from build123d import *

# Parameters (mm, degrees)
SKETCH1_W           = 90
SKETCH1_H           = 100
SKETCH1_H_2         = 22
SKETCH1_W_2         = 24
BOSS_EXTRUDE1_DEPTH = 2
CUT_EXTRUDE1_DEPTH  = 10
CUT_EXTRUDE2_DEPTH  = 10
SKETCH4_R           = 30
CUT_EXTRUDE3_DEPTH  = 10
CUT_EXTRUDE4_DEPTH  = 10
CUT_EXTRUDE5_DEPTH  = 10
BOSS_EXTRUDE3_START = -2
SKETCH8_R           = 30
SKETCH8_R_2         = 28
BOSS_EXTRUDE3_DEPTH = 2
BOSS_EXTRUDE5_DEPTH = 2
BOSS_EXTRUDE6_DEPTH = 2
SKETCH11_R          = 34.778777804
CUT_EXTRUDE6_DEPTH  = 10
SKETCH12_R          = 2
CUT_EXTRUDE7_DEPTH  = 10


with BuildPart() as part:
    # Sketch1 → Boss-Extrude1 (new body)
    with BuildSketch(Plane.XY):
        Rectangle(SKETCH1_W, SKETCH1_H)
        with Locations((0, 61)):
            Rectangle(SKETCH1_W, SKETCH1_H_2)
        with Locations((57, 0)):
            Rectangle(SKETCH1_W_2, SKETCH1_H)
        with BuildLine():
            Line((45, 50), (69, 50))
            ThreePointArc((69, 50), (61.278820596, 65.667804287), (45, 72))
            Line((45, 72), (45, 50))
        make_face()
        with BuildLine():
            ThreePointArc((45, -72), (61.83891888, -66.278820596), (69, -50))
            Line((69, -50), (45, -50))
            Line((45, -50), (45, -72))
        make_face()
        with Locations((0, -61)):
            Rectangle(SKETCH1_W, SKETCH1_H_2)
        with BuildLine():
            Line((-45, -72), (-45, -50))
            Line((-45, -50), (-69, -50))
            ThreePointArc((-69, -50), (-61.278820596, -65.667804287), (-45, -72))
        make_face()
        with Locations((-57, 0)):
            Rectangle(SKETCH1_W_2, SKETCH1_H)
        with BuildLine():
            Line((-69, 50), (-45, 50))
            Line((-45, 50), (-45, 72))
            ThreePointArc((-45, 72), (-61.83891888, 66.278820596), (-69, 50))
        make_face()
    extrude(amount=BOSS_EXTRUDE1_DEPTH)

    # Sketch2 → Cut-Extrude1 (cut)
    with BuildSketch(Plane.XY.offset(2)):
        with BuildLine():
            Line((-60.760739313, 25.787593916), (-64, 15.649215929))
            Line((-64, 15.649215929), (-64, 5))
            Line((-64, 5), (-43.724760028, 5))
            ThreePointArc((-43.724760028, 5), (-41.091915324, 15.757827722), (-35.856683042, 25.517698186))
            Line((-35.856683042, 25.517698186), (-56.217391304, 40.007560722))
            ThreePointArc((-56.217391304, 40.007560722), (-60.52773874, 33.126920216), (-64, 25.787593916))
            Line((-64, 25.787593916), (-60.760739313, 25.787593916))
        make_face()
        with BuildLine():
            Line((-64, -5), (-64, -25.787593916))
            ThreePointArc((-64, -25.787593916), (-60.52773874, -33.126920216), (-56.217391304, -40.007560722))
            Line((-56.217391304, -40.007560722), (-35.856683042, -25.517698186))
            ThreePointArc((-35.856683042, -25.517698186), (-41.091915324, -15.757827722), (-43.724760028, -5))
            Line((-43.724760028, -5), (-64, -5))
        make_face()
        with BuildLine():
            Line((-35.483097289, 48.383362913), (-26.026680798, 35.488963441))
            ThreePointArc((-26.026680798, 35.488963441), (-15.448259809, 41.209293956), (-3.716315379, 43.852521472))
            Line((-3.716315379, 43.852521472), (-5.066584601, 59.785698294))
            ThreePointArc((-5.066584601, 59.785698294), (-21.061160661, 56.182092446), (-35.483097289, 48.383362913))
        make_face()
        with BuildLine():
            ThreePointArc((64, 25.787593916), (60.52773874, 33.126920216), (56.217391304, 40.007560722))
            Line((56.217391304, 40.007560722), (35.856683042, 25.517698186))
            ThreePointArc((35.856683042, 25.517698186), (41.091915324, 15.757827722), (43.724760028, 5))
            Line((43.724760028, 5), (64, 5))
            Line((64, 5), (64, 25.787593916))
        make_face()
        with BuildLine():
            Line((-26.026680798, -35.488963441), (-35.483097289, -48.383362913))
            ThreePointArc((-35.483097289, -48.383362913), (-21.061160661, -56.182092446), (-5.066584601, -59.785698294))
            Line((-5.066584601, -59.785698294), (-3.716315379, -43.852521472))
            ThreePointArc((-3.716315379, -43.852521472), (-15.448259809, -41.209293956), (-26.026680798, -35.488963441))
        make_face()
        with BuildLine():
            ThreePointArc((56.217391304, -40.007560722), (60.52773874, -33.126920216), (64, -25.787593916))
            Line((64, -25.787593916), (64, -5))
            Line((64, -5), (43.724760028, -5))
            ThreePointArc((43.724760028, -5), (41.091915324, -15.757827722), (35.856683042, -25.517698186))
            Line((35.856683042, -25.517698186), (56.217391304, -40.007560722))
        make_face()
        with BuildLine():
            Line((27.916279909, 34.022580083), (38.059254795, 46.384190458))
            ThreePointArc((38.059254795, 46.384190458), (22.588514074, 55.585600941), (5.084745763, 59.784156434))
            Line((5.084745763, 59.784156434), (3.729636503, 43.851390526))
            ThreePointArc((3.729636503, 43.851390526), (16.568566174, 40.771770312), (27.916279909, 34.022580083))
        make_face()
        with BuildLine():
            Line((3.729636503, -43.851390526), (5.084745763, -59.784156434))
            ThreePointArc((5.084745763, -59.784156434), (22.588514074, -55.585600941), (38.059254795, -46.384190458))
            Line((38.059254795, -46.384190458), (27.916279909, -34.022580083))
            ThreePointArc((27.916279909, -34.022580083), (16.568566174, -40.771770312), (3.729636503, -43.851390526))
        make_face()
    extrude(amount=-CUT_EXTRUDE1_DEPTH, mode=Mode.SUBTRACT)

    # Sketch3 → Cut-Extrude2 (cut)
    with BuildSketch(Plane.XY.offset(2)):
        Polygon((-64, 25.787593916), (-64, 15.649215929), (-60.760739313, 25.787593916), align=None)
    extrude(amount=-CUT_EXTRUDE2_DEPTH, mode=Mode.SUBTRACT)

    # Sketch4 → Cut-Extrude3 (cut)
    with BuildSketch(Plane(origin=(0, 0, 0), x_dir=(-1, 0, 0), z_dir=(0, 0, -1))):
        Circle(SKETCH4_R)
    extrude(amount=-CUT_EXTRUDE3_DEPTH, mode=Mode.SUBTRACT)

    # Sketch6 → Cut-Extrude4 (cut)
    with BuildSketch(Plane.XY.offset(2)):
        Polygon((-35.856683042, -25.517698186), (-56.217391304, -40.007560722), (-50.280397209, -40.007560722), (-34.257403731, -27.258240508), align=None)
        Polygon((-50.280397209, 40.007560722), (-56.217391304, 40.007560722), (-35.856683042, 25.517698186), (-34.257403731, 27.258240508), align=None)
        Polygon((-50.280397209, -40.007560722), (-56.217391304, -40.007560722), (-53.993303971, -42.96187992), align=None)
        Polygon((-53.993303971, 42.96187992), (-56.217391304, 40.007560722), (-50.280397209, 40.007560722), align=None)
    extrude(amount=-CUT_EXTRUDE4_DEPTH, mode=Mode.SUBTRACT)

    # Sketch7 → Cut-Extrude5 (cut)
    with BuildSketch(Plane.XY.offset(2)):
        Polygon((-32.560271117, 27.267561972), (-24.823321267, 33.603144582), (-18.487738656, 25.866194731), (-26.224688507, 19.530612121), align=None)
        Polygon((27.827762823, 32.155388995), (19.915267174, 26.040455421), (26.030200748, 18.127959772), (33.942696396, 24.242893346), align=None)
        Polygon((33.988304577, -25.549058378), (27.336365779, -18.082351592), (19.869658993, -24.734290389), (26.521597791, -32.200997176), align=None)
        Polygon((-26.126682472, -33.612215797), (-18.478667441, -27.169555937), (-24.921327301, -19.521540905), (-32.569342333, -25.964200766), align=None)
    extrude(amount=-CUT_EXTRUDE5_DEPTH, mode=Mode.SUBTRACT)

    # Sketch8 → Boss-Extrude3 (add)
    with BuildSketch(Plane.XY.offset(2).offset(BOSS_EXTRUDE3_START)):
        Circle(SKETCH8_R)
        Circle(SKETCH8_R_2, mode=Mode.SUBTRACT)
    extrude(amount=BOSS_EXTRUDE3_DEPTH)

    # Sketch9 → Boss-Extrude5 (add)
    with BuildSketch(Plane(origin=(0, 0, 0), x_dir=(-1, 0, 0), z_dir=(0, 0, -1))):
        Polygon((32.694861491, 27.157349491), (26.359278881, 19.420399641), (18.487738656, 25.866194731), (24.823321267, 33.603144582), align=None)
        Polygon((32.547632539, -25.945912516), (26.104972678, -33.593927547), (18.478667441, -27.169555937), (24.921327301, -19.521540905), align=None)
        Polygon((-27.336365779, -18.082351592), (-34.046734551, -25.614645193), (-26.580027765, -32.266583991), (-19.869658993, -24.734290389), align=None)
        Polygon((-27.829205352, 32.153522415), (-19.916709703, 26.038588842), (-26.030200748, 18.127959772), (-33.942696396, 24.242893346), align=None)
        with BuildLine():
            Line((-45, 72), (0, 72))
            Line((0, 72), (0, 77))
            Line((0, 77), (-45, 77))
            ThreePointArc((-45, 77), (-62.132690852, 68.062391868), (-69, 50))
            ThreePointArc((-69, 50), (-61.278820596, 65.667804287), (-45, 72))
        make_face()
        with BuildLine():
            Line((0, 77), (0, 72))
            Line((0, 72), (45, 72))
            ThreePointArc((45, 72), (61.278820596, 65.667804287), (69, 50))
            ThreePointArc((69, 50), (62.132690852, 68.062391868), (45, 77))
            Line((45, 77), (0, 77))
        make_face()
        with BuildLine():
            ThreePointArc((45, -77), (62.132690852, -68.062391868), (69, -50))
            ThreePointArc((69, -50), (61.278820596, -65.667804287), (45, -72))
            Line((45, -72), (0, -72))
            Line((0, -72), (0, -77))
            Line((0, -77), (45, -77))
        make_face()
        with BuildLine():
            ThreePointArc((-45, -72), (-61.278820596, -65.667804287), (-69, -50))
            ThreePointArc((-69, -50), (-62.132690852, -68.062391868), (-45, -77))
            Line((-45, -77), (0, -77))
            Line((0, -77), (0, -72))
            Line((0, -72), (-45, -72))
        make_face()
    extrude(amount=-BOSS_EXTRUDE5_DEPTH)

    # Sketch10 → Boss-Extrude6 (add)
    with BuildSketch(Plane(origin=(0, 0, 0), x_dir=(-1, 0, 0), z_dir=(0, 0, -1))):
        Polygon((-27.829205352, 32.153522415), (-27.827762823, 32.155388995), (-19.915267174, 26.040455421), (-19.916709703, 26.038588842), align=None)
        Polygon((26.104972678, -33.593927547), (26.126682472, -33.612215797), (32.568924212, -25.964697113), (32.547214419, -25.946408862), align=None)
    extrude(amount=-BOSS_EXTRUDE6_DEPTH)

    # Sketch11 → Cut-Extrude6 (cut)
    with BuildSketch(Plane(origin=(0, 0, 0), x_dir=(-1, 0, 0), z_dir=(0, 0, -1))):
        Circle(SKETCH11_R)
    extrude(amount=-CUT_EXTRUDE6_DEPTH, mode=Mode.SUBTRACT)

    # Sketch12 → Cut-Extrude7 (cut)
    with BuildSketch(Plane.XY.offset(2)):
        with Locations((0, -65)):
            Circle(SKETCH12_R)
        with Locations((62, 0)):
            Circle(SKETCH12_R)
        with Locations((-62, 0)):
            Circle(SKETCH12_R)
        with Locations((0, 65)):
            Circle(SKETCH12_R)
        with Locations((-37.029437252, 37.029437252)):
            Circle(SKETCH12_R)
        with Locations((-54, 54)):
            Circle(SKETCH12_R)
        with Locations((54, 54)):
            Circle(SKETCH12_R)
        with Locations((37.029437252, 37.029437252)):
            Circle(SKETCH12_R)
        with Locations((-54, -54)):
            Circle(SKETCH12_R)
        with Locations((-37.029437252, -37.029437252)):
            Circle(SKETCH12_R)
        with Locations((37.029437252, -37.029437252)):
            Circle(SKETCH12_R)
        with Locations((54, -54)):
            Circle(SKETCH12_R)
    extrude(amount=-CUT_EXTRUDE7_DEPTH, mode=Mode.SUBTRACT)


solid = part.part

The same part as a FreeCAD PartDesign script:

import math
import FreeCAD as App
import Part
import Sketcher

V = App.Vector


def add_polygon(sketch, points):
    """Adds a closed chain of lines whose ends are joined by coincident constraints."""
    first, n = sketch.GeometryCount, len(points)
    for a, b in zip(points, points[1:] + points[:1]):
        sketch.addGeometry(Part.LineSegment(App.Vector(*a, 0), App.Vector(*b, 0)), False)
    for i in range(n):
        sketch.addConstraint(Sketcher.Constraint("Coincident", first + i, 2, first + (i + 1) % n, 1))

doc = App.newDocument("Part")
params = doc.addObject("Spreadsheet::Sheet", "Params")
for row, (alias, value) in enumerate([
    ("sketch1_width", "90 mm"),
    ("sketch1_height", "100 mm"),
    ("pad1_length", "2 mm"),
    ("sketch2_radius", "69 mm"),
    ("sketch2_radius2", "60 mm"),
    ("pocket1_length", "10 mm"),
    ("pocket2_length", "10 mm"),
    ("sketch4_diameter", "60 mm"),
    ("pocket3_length", "10 mm"),
    ("pocket4_length", "10 mm"),
    ("sketch6_length", "10 mm"),
    ("pocket5_length", "10 mm"),
    ("sketch7_diameter", "60 mm"),
    ("sketch7_diameter2", "56 mm"),
    ("pad2_length", "2 mm"),
    ("sketch8_width", "90 mm"),
    ("sketch8_length", "10 mm"),
    ("pad3_length", "2 mm"),
    ("sketch9_length", "10 mm"),
    ("pad4_length", "2 mm"),
    ("pocket6_length", "10 mm"),
    ("sketch11_diameter", "4 mm"),
    ("pocket7_length", "10 mm"),
], start=1):
    params.set(f"A{row}", alias)
    params.set(f"B{row}", "=" + value)
    params.setAlias(f"B{row}", alias)

body = doc.addObject("PartDesign::Body", "Body")

# Sketch on XY plane
sketch1 = body.newObject("Sketcher::SketchObject", "Sketch")
sketch1.AttachmentSupport = (doc.getObject("XY_Plane"), [""])
sketch1.MapMode = "FlatFace"
sketch1.addGeometry([
    Part.ArcOfCircle(Part.Circle(V(47, -50, 0), V(0, 0, 1), 22), math.radians(-95), math.radians(0)),  # 0
    Part.LineSegment(V(69, -50, 0), V(69, 50, 0)),  # 1
    Part.ArcOfCircle(Part.Circle(V(45, 48, 0), V(0, 0, 1), 24), math.radians(5), math.radians(90)),  # 2
    Part.LineSegment(V(45, 72, 0), V(-45, 72, 0)),  # 3
    Part.ArcOfCircle(Part.Circle(V(-47, 50, 0), V(0, 0, 1), 22), math.radians(85), math.radians(180)),  # 4
    Part.LineSegment(V(-69, 50, 0), V(-69, -50, 0)),  # 5
    Part.ArcOfCircle(Part.Circle(V(-45, -48, 0), V(0, 0, 1), 24), math.radians(-175), math.radians(-90)),  # 6
    Part.LineSegment(V(-45, -72, 0), V(45, -72, 0)),  # 7
], False)
sketch1.addConstraint([
    Sketcher.Constraint("Tangent", 0, 2, 1, 1),
    Sketcher.Constraint("Coincident", 1, 2, 2, 1),
    Sketcher.Constraint("Tangent", 2, 2, 3, 1),
    Sketcher.Constraint("Coincident", 3, 2, 4, 1),
    Sketcher.Constraint("Tangent", 4, 2, 5, 1),
    Sketcher.Constraint("Coincident", 5, 2, 6, 1),
    Sketcher.Constraint("Tangent", 6, 2, 7, 1),
    Sketcher.Constraint("Coincident", 7, 2, 0, 1),
    Sketcher.Constraint("Vertical", 1),
    Sketcher.Constraint("Horizontal", 3),
    Sketcher.Constraint("Vertical", 5),
    Sketcher.Constraint("Horizontal", 7),
    Sketcher.Constraint("Equal", 0, 4),
    Sketcher.Constraint("Equal", 2, 6),
    Sketcher.Constraint("Symmetric", 0, 3, 4, 3, -1, 1),
    Sketcher.Constraint("Symmetric", 2, 3, 6, 3, -1, 1),
    Sketcher.Constraint("Horizontal", 4, 3, 1, 2),
    Sketcher.Constraint("Vertical", 6, 3, 3, 2),
    Sketcher.Constraint("DistanceX", 3, 2, 3, 1, 90.0),
    Sketcher.Constraint("DistanceY", 1, 1, 1, 2, 100.0),
    Sketcher.Constraint("DistanceX", -1, 1, 0, 2, 69.0),
    Sketcher.Constraint("DistanceY", -1, 1, 2, 2, 72.0),
])
sketch1.setExpression("Constraints[18]", "Params.sketch1_width")
sketch1.setExpression("Constraints[19]", "Params.sketch1_height")
pad1 = body.newObject("PartDesign::Pad", "Pad")
pad1.Profile = sketch1
pad1.setExpression("Length", "Params.pad1_length")

# Sketch on XY plane
sketch2 = body.newObject("Sketcher::SketchObject", "Sketch001")
sketch2.AttachmentSupport = (doc.getObject("XY_Plane"), [""])
sketch2.MapMode = "FlatFace"
sketch2.AttachmentOffset = App.Placement(V(0, 0, 2), App.Rotation())
sketch2.addGeometry([
    Part.LineSegment(V(-60.8, 25.8, 0), V(-64, 15.6, 0)),  # 0
    Part.LineSegment(V(-64, 15.6, 0), V(-64, 5, 0)),  # 1
    Part.LineSegment(V(-64, 5, 0), V(-43.7, 5, 0)),  # 2
    Part.ArcOfCircle(Part.Circle(V(0, 0, 0), V(0, 0, 1), 44), math.radians(145), math.radians(173)),  # 3
    Part.LineSegment(V(-35.9, 25.5, 0), V(-56.2, 40, 0)),  # 4
    Part.ArcOfCircle(Part.Circle(V(0, 0, 0), V(0, 0, 1), 69), math.radians(144.56), math.radians(158.05)),  # 5
    Part.LineSegment(V(-64, 25.8, 0), V(-60.8, 25.8, 0)),  # 6
    Part.LineSegment(V(-64, -5, 0), V(-64, -25.8, 0)),  # 7
    Part.ArcOfCircle(Part.Circle(V(0, 0, 0), V(0, 0, 1), 69), math.radians(-158.05), math.radians(-144.56)),  # 8
    Part.LineSegment(V(-56.2, -40, 0), V(-35.9, -25.5, 0)),  # 9
    Part.ArcOfCircle(Part.Circle(V(0, 0, 0), V(0, 0, 1), 44), math.radians(-173), math.radians(-145)),  # 10
    Part.LineSegment(V(-43.7, -5, 0), V(-64, -5, 0)),  # 11
    Part.LineSegment(V(-35.5, 48.4, 0), V(-26, 35.5, 0)),  # 12
    Part.ArcOfCircle(Part.Circle(V(0, 0, 0), V(0, 0, 1), 44), math.radians(95), math.radians(126)),  # 13
    Part.LineSegment(V(-3.7, 43.9, 0), V(-5.1, 59.8, 0)),  # 14
    Part.ArcOfCircle(Part.Circle(V(0, 0, 0), V(0, 0, 1), 60), math.radians(95), math.radians(126)),  # 15
    Part.ArcOfCircle(Part.Circle(V(0, 0, 0), V(0, 0, 1), 69), math.radians(21.95), math.radians(35.44)),  # 16
    Part.LineSegment(V(56.2, 40, 0), V(35.9, 25.5, 0)),  # 17
    Part.ArcOfCircle(Part.Circle(V(0, 0, 0), V(0, 0, 1), 44), math.radians(7), math.radians(35)),  # 18
    Part.LineSegment(V(43.7, 5, 0), V(64, 5, 0)),  # 19
    Part.LineSegment(V(64, 5, 0), V(64, 25.8, 0)),  # 20
    Part.LineSegment(V(-26, -35.5, 0), V(-35.5, -48.4, 0)),  # 21
    Part.ArcOfCircle(Part.Circle(V(0, 0, 0), V(0, 0, 1), 60), math.radians(-126), math.radians(-95)),  # 22
    Part.LineSegment(V(-5.1, -59.8, 0), V(-3.7, -43.9, 0)),  # 23
    Part.ArcOfCircle(Part.Circle(V(0, 0, 0), V(0, 0, 1), 44), math.radians(-126), math.radians(-95)),  # 24
    Part.ArcOfCircle(Part.Circle(V(0, 0, 0), V(0, 0, 1), 69), math.radians(-35.44), math.radians(-21.95)),  # 25
    Part.LineSegment(V(64, -25.8, 0), V(64, -5, 0)),  # 26
    Part.LineSegment(V(64, -5, 0), V(43.7, -5, 0)),  # 27
    Part.ArcOfCircle(Part.Circle(V(0, 0, 0), V(0, 0, 1), 44), math.radians(-35), math.radians(-7)),  # 28
    Part.LineSegment(V(35.9, -25.5, 0), V(56.2, -40, 0)),  # 29
    Part.LineSegment(V(27.9, 34, 0), V(38.1, 46.4, 0)),  # 30
    Part.ArcOfCircle(Part.Circle(V(0, 0, 0), V(0, 0, 1), 60), math.radians(51), math.radians(85)),  # 31
    Part.LineSegment(V(5.1, 59.8, 0), V(3.7, 43.9, 0)),  # 32
    Part.ArcOfCircle(Part.Circle(V(0, 0, 0), V(0, 0, 1), 44), math.radians(51), math.radians(85)),  # 33
    Part.LineSegment(V(3.7, -43.9, 0), V(5.1, -59.8, 0)),  # 34
    Part.ArcOfCircle(Part.Circle(V(0, 0, 0), V(0, 0, 1), 60), math.radians(-85), math.radians(-51)),  # 35
    Part.LineSegment(V(38.1, -46.4, 0), V(27.9, -34, 0)),  # 36
    Part.ArcOfCircle(Part.Circle(V(0, 0, 0), V(0, 0, 1), 44), math.radians(-85), math.radians(-51)),  # 37
], False)
sketch2.addConstraint([
    Sketcher.Constraint("Coincident", 0, 2, 1, 1),
    Sketcher.Constraint("Coincident", 1, 2, 2, 1),
    Sketcher.Constraint("Coincident", 2, 2, 3, 2),
    Sketcher.Constraint("Coincident", 3, 1, 4, 1),
    Sketcher.Constraint("Coincident", 4, 2, 5, 1),
    Sketcher.Constraint("Coincident", 5, 2, 6, 1),
    Sketcher.Constraint("Coincident", 6, 2, 0, 1),
    Sketcher.Constraint("Coincident", 7, 2, 8, 1),
    Sketcher.Constraint("Coincident", 8, 2, 9, 1),
    Sketcher.Constraint("Coincident", 9, 2, 10, 2),
    Sketcher.Constraint("Coincident", 10, 1, 11, 1),
    Sketcher.Constraint("Coincident", 11, 2, 7, 1),
    Sketcher.Constraint("Coincident", 12, 2, 13, 2),
    Sketcher.Constraint("Coincident", 13, 1, 14, 1),
    Sketcher.Constraint("Coincident", 14, 2, 15, 1),
    Sketcher.Constraint("Coincident", 15, 2, 12, 1),
    Sketcher.Constraint("Coincident", 16, 2, 17, 1),
    Sketcher.Constraint("Coincident", 17, 2, 18, 2),
    Sketcher.Constraint("Coincident", 18, 1, 19, 1),
    Sketcher.Constraint("Coincident", 19, 2, 20, 1),
    Sketcher.Constraint("Coincident", 20, 2, 16, 1),
    Sketcher.Constraint("Coincident", 21, 2, 22, 1),
    Sketcher.Constraint("Coincident", 22, 2, 23, 1),
    Sketcher.Constraint("Coincident", 23, 2, 24, 2),
    Sketcher.Constraint("Coincident", 24, 1, 21, 1),
    Sketcher.Constraint("Coincident", 25, 2, 26, 1),
    Sketcher.Constraint("Coincident", 26, 2, 27, 1),
    Sketcher.Constraint("Coincident", 27, 2, 28, 2),
    Sketcher.Constraint("Coincident", 28, 1, 29, 1),
    Sketcher.Constraint("Coincident", 29, 2, 25, 1),
    Sketcher.Constraint("Coincident", 30, 2, 31, 1),
    Sketcher.Constraint("Coincident", 31, 2, 32, 1),
    Sketcher.Constraint("Coincident", 32, 2, 33, 2),
    Sketcher.Constraint("Coincident", 33, 1, 30, 1),
    Sketcher.Constraint("Coincident", 34, 2, 35, 1),
    Sketcher.Constraint("Coincident", 35, 2, 36, 1),
    Sketcher.Constraint("Coincident", 36, 2, 37, 2),
    Sketcher.Constraint("Coincident", 37, 1, 34, 1),
    Sketcher.Constraint("Vertical", 1),
    Sketcher.Constraint("Horizontal", 2),
    Sketcher.Constraint("Horizontal", 6),
    Sketcher.Constraint("Vertical", 7),
    Sketcher.Constraint("Horizontal", 11),
    Sketcher.Constraint("Horizontal", 19),
    Sketcher.Constraint("Vertical", 20),
    Sketcher.Constraint("Vertical", 26),
    Sketcher.Constraint("Horizontal", 27),
    Sketcher.Constraint("Coincident", 3, 3, -1, 1),
    Sketcher.Constraint("Coincident", 5, 3, -1, 1),
    Sketcher.Constraint("Coincident", 8, 3, -1, 1),
    Sketcher.Constraint("Coincident", 10, 3, -1, 1),
    Sketcher.Constraint("Coincident", 13, 3, -1, 1),
    Sketcher.Constraint("Coincident", 15, 3, -1, 1),
    Sketcher.Constraint("Coincident", 16, 3, -1, 1),
    Sketcher.Constraint("Coincident", 18, 3, -1, 1),
    Sketcher.Constraint("Coincident", 22, 3, -1, 1),
    Sketcher.Constraint("Coincident", 24, 3, -1, 1),
    Sketcher.Constraint("Coincident", 25, 3, -1, 1),
    Sketcher.Constraint("Coincident", 28, 3, -1, 1),
    Sketcher.Constraint("Coincident", 31, 3, -1, 1),
    Sketcher.Constraint("Coincident", 33, 3, -1, 1),
    Sketcher.Constraint("Coincident", 35, 3, -1, 1),
    Sketcher.Constraint("Coincident", 37, 3, -1, 1),
    Sketcher.Constraint("Equal", 5, 8),
    Sketcher.Constraint("Equal", 3, 10),
    Sketcher.Constraint("Equal", 10, 13),
    Sketcher.Constraint("Equal", 8, 16),
    Sketcher.Constraint("Equal", 13, 18),
    Sketcher.Constraint("Equal", 15, 22),
    Sketcher.Constraint("Equal", 18, 24),
    Sketcher.Constraint("Equal", 16, 25),
    Sketcher.Constraint("Equal", 24, 28),
    Sketcher.Constraint("Equal", 22, 31),
    Sketcher.Constraint("Equal", 28, 33),
    Sketcher.Constraint("Equal", 31, 35),
    Sketcher.Constraint("Equal", 33, 37),
    Sketcher.Constraint("Symmetric", 11, 2, 19, 2, -1, 1),
    Sketcher.Constraint("Symmetric", 1, 2, 26, 2, -1, 1),
    Sketcher.Constraint("Symmetric", 1, 2, 19, 2, -2),
    Sketcher.Constraint("Parallel", 9, 17),
    Sketcher.Constraint("Parallel", 4, 29),
    Sketcher.Constraint("Horizontal", 4, 2, 16, 2),
    Sketcher.Constraint("Horizontal", 3, 1, 17, 2),
    Sketcher.Constraint("Horizontal", 6, 2, 20, 2),
    Sketcher.Constraint("Horizontal", 9, 2, 28, 1),
    Sketcher.Constraint("Vertical", 4, 2, 8, 2),
    Sketcher.Constraint("Vertical", 15, 2, 21, 2),
    Sketcher.Constraint("Vertical", 14, 2, 22, 2),
    Sketcher.Constraint("Vertical", 13, 1, 23, 2),
    Sketcher.Constraint("Vertical", 12, 2, 24, 1),
    Sketcher.Constraint("Vertical", 31, 2, 34, 2),
    Sketcher.Constraint("Vertical", 30, 2, 35, 2),
    Sketcher.Constraint("Vertical", 33, 1, 36, 2),
    Sketcher.Constraint("Vertical", 32, 2, 37, 1),
    Sketcher.Constraint("Radius", 5, 69.0),
    Sketcher.Constraint("Radius", 15, 60.0),
    Sketcher.Constraint("DistanceX", 0, 2, -1, 1, 64.0),
    Sketcher.Constraint("DistanceY", -1, 1, 1, 2, 5.0),
    Sketcher.Constraint("Radius", 3, 44.009711),
    Sketcher.Constraint("DistanceY", 3, 1, 14, 2, 34.268),
    Sketcher.Constraint("DistanceX", 13, 1, 17, 2, 39.572998),
    Sketcher.Constraint("DistanceX", 6, 1, 6, 2, 3.239261),
    Sketcher.Constraint("DistanceY", 9, 2, -1, 1, 25.517698),
    Sketcher.Constraint("DistanceY", 12, 2, 15, 2, 12.894399),
    Sketcher.Constraint("DistanceY", 32, 2, 30, 2, 2.5328),
    Sketcher.Constraint("DistanceY", 1, 2, 1, 1, 10.649216),
    Sketcher.Constraint("DistanceX", 4, 2, -1, 1, 56.217391),
    Sketcher.Constraint("DistanceX", 12, 2, -1, 1, 26.026681),
    Sketcher.Constraint("DistanceY", -1, 1, 30, 2, 46.38419),
    Sketcher.Constraint("DistanceX", -1, 1, 33, 1, 27.91628),
    Sketcher.Constraint("DistanceX", 14, 2, 31, 2, 10.15133),
])
sketch2.setExpression("Constraints[94]", "Params.sketch2_radius")
sketch2.setExpression("Constraints[95]", "Params.sketch2_radius2")
pocket1 = body.newObject("PartDesign::Pocket", "Pocket")
pocket1.Profile = sketch2
pocket1.setExpression("Length", "Params.pocket1_length")

# Sketch on XY plane
sketch3 = body.newObject("Sketcher::SketchObject", "Sketch002")
sketch3.AttachmentSupport = (doc.getObject("XY_Plane"), [""])
sketch3.MapMode = "FlatFace"
sketch3.AttachmentOffset = App.Placement(V(0, 0, 2), App.Rotation())
add_polygon(sketch3, [(-64, 25.8), (-64, 15.6), (-60.8, 25.8)])  # lines 0-2
sketch3.addConstraint([
    Sketcher.Constraint("Vertical", 0),
    Sketcher.Constraint("Horizontal", 2),
    Sketcher.Constraint("DistanceX", 0, 2, -1, 1, 64.0),
    Sketcher.Constraint("DistanceX", 2, 2, 2, 1, 3.239261),
    Sketcher.Constraint("DistanceY", 0, 2, 0, 1, 10.138378),
    Sketcher.Constraint("DistanceY", -1, 1, 0, 2, 15.649216),
])
pocket2 = body.newObject("PartDesign::Pocket", "Pocket001")
pocket2.Profile = sketch3
pocket2.setExpression("Length", "Params.pocket2_length")

# Sketch on XY plane
sketch4 = body.newObject("Sketcher::SketchObject", "Sketch003")
sketch4.AttachmentSupport = (doc.getObject("XY_Plane"), [""])
sketch4.MapMode = "FlatFace"
sketch4.addGeometry(Part.Circle(V(0, 0, 0), V(0, 0, 1), 30), False)
sketch4.addConstraint([
    Sketcher.Constraint("Coincident", 0, 3, -1, 1),
    Sketcher.Constraint("Diameter", 0, 60.0),
])
sketch4.setExpression("Constraints[1]", "Params.sketch4_diameter")
pocket3 = body.newObject("PartDesign::Pocket", "Pocket002")
pocket3.Profile = sketch4
pocket3.setExpression("Length", "Params.pocket3_length")
pocket3.Reversed = True

# Sketch on XY plane
sketch5 = body.newObject("Sketcher::SketchObject", "Sketch004")
sketch5.AttachmentSupport = (doc.getObject("XY_Plane"), [""])
sketch5.MapMode = "FlatFace"
sketch5.AttachmentOffset = App.Placement(V(0, 0, 2), App.Rotation())
add_polygon(sketch5, [(-35.9, -25.5), (-56.2, -40), (-54, -43), (-50.3, -40), (-34.3, -27.3)])  # lines 0-4
add_polygon(sketch5, [(-56.2, 40), (-35.9, 25.5), (-34.3, 27.3), (-50.3, 40), (-54, 43)])  # lines 5-9
sketch5.addConstraint([
    Sketcher.Constraint("Symmetric", 4, 2, 5, 2, -1),
    Sketcher.Constraint("Symmetric", 3, 2, 6, 2, -1),
    Sketcher.Constraint("Symmetric", 2, 2, 7, 2, -1),
    Sketcher.Constraint("Symmetric", 1, 2, 8, 2, -1),
    Sketcher.Constraint("Symmetric", 0, 2, 9, 2, -1),
    Sketcher.Constraint("Parallel", 2, 3),
    Sketcher.Constraint("Horizontal", 0, 2, 2, 2),
    Sketcher.Constraint("DistanceY", 4, 2, -1, 1, 25.517698),
    Sketcher.Constraint("DistanceX", 1, 2, 3, 2, 19.7359),
    Sketcher.Constraint("DistanceY", 2, 2, 6, 2, 67.265801),
    Sketcher.Constraint("Distance", 0, 24.990289),
    Sketcher.Constraint("Distance", 2, 4.744858),
    Sketcher.Constraint("DistanceX", 0, 2, -1, 1, 56.217391),
    Sketcher.Constraint("DistanceY", 0, 2, -1, 1, 40.007561),
    Sketcher.Constraint("DistanceX", 4, 2, 3, 2, 1.599279),
])
pocket4 = body.newObject("PartDesign::Pocket", "Pocket003")
pocket4.Profile = sketch5
pocket4.setExpression("Length", "Params.pocket4_length")

# Sketch on XY plane
sketch6 = body.newObject("Sketcher::SketchObject", "Sketch005")
sketch6.AttachmentSupport = (doc.getObject("XY_Plane"), [""])
sketch6.MapMode = "FlatFace"
sketch6.AttachmentOffset = App.Placement(V(0, 0, 2), App.Rotation())
add_polygon(sketch6, [(-25, 34), (-33, 27), (-26, 20), (-18, 26)])  # lines 0-3
add_polygon(sketch6, [(28, 32), (20, 26), (26, 18), (34, 24)])  # lines 4-7
add_polygon(sketch6, [(34, -26), (27, -18), (20, -25), (27, -32)])  # lines 8-11
add_polygon(sketch6, [(-26, -34), (-18, -27), (-25, -20), (-33, -26)])  # lines 12-15
sketch6.addConstraint([
    Sketcher.Constraint("Perpendicular", 0, 1),
    Sketcher.Constraint("Perpendicular", 1, 2),
    Sketcher.Constraint("Perpendicular", 2, 3),
    Sketcher.Constraint("Perpendicular", 4, 5),
    Sketcher.Constraint("Perpendicular", 5, 6),
    Sketcher.Constraint("Perpendicular", 6, 7),
    Sketcher.Constraint("Perpendicular", 8, 9),
    Sketcher.Constraint("Perpendicular", 9, 10),
    Sketcher.Constraint("Perpendicular", 10, 11),
    Sketcher.Constraint("Perpendicular", 12, 13),
    Sketcher.Constraint("Perpendicular", 13, 14),
    Sketcher.Constraint("Perpendicular", 14, 15),
    Sketcher.Constraint("Equal", 0, 1),
    Sketcher.Constraint("Equal", 3, 4),
    Sketcher.Constraint("Equal", 4, 5),
    Sketcher.Constraint("Equal", 7, 8),
    Sketcher.Constraint("Equal", 8, 9),
    Sketcher.Constraint("Equal", 11, 12),
    Sketcher.Constraint("Equal", 12, 13),
    Sketcher.Constraint("Distance", 0, 10.0),
    Sketcher.Constraint("DistanceX", 14, 2, 9, 2, 52.439001),
    Sketcher.Constraint("DistanceX", -1, 1, 5, 2, 26.030201),
    Sketcher.Constraint("DistanceY", 14, 2, -1, 1, 25.964201),
    Sketcher.Constraint("DistanceY", 6, 2, 2, 2, 1.623301),
    Sketcher.Constraint("DistanceX", 2, 2, 7, 2, 46.315501),
    Sketcher.Constraint("DistanceX", 4, 2, 8, 2, 7.421099),
    Sketcher.Constraint("DistanceX", 10, 2, 6, 2, 7.421099),
    Sketcher.Constraint("DistanceX", 0, 2, -1, 1, 32.560271),
    Sketcher.Constraint("DistanceY", -1, 1, 0, 2, 27.267562),
    Sketcher.Constraint("DistanceX", 1, 2, -1, 1, 26.224689),
    Sketcher.Constraint("DistanceY", 8, 2, -1, 1, 18.082352),
    Sketcher.Constraint("DistanceY", 13, 2, -1, 1, 19.521541),
])
sketch6.setExpression("Constraints[35]", "Params.sketch6_length")
pocket5 = body.newObject("PartDesign::Pocket", "Pocket004")
pocket5.Profile = sketch6
pocket5.setExpression("Length", "Params.pocket5_length")

# Sketch on XY plane
sketch7 = body.newObject("Sketcher::SketchObject", "Sketch006")
sketch7.AttachmentSupport = (doc.getObject("XY_Plane"), [""])
sketch7.MapMode = "FlatFace"
sketch7.addGeometry([
    Part.Circle(V(0, 0, 0), V(0, 0, 1), 30),
    Part.Circle(V(0, 0, 0), V(0, 0, 1), 28),
], False)
sketch7.addConstraint([
    Sketcher.Constraint("Coincident", 0, 3, -1, 1),
    Sketcher.Constraint("Coincident", 1, 3, -1, 1),
    Sketcher.Constraint("Diameter", 0, 60.0),
    Sketcher.Constraint("Diameter", 1, 56.0),
])
sketch7.setExpression("Constraints[2]", "Params.sketch7_diameter")
sketch7.setExpression("Constraints[3]", "Params.sketch7_diameter2")
pad2 = body.newObject("PartDesign::Pad", "Pad001")
pad2.Profile = sketch7
pad2.setExpression("Length", "Params.pad2_length")

# Sketch on XY plane
sketch8 = body.newObject("Sketcher::SketchObject", "Sketch007")
sketch8.AttachmentSupport = (doc.getObject("XY_Plane"), [""])
sketch8.MapMode = "FlatFace"
add_polygon(sketch8, [(-26, 19), (-33, 27), (-25, 34), (-18, 26)])  # lines 0-3
add_polygon(sketch8, [(-26, -34), (-33, -26), (-25, -20), (-18, -27)])  # lines 4-7
add_polygon(sketch8, [(27, -18), (34, -26), (27, -32), (20, -25)])  # lines 8-11
add_polygon(sketch8, [(20, 26), (28, 32), (34, 24), (26, 18)])  # lines 12-15
sketch8.addGeometry(Part.LineSegment(V(45, 72, 0), V(-45, 72, 0)), False)  # 16
sketch8.addGeometry(Part.ArcOfCircle(Part.Circle(V(-45, 48, 0), V(0, 0, 1), 24), math.radians(90), math.radians(175)), False)  # 17
sketch8.addGeometry(Part.ArcOfCircle(Part.Circle(V(-42, 50, 0), V(0, 0, 1), 27), math.radians(97), math.radians(180)), False)  # 18
sketch8.addGeometry(Part.LineSegment(V(-45, 77, 0), V(45, 77, 0)), False)  # 19
sketch8.addGeometry(Part.ArcOfCircle(Part.Circle(V(42, 50, 0), V(0, 0, 1), 27), math.radians(0), math.radians(83)), False)  # 20
sketch8.addGeometry(Part.ArcOfCircle(Part.Circle(V(45, 48, 0), V(0, 0, 1), 24), math.radians(5), math.radians(90)), False)  # 21
sketch8.addGeometry(Part.ArcOfCircle(Part.Circle(V(-42, -50, 0), V(0, 0, 1), 27), math.radians(180), math.radians(263)), False)  # 22
sketch8.addGeometry(Part.ArcOfCircle(Part.Circle(V(-45, -48, 0), V(0, 0, 1), 24), math.radians(-175), math.radians(-90)), False)  # 23
sketch8.addGeometry(Part.LineSegment(V(-45, -72, 0), V(45, -72, 0)), False)  # 24
sketch8.addGeometry(Part.ArcOfCircle(Part.Circle(V(45, -48, 0), V(0, 0, 1), 24), math.radians(-90), math.radians(-5)), False)  # 25
sketch8.addGeometry(Part.ArcOfCircle(Part.Circle(V(42, -50, 0), V(0, 0, 1), 27), math.radians(-83), math.radians(0)), False)  # 26
sketch8.addGeometry(Part.LineSegment(V(45, -77, 0), V(-45, -77, 0)), False)  # 27
sketch8.addConstraint([
    Sketcher.Constraint("Tangent", 16, 2, 17, 1),
    Sketcher.Constraint("Coincident", 17, 2, 18, 2),
    Sketcher.Constraint("Coincident", 18, 1, 19, 1),
    Sketcher.Constraint("Coincident", 19, 2, 20, 2),
    Sketcher.Constraint("Coincident", 20, 1, 21, 1),
    Sketcher.Constraint("Tangent", 21, 2, 16, 1),
    Sketcher.Constraint("Coincident", 22, 1, 23, 1),
    Sketcher.Constraint("Tangent", 23, 2, 24, 1),
    Sketcher.Constraint("Tangent", 24, 2, 25, 1),
    Sketcher.Constraint("Coincident", 25, 2, 26, 2),
    Sketcher.Constraint("Coincident", 26, 1, 27, 1),
    Sketcher.Constraint("Coincident", 27, 2, 22, 2),
    Sketcher.Constraint("Horizontal", 16),
    Sketcher.Constraint("Horizontal", 19),
    Sketcher.Constraint("Horizontal", 24),
    Sketcher.Constraint("Horizontal", 27),
    Sketcher.Constraint("Equal", 18, 20),
    Sketcher.Constraint("Equal", 17, 21),
    Sketcher.Constraint("Equal", 20, 22),
    Sketcher.Constraint("Equal", 21, 23),
    Sketcher.Constraint("Equal", 23, 25),
    Sketcher.Constraint("Equal", 22, 26),
    Sketcher.Constraint("Symmetric", 20, 3, 22, 3, -1, 1),
    Sketcher.Constraint("Symmetric", 21, 3, 23, 3, -1, 1),
    Sketcher.Constraint("Symmetric", 18, 3, 26, 3, -1, 1),
    Sketcher.Constraint("Symmetric", 18, 3, 20, 3, -2),
    Sketcher.Constraint("Perpendicular", 0, 1),
    Sketcher.Constraint("Perpendicular", 1, 2),
    Sketcher.Constraint("Perpendicular", 2, 3),
    Sketcher.Constraint("Perpendicular", 4, 5),
    Sketcher.Constraint("Perpendicular", 5, 6),
    Sketcher.Constraint("Perpendicular", 6, 7),
    Sketcher.Constraint("Perpendicular", 8, 9),
    Sketcher.Constraint("Perpendicular", 9, 10),
    Sketcher.Constraint("Perpendicular", 10, 11),
    Sketcher.Constraint("Perpendicular", 12, 13),
    Sketcher.Constraint("Perpendicular", 13, 14),
    Sketcher.Constraint("Perpendicular", 14, 15),
    Sketcher.Constraint("Horizontal", 20, 3, 17, 2),
    Sketcher.Constraint("Horizontal", 17, 2, 20, 1),
    Sketcher.Constraint("Horizontal", 22, 1, 25, 2),
    Sketcher.Constraint("Vertical", 16, 2, 18, 1),
    Sketcher.Constraint("Vertical", 24, 2, 26, 1),
    Sketcher.Constraint("Equal", 2, 4),
    Sketcher.Constraint("Equal", 6, 9),
    Sketcher.Constraint("Equal", 11, 12),
    Sketcher.Constraint("DistanceX", 16, 2, 16, 1, 90.0),
    Sketcher.Constraint("Distance", 0, 10.0),
    Sketcher.Constraint("DistanceY", -1, 1, 18, 3, 50.0),
    Sketcher.Constraint("DistanceY", -1, 1, 16, 2, 72.0),
    Sketcher.Constraint("DistanceX", 17, 2, -1, 1, 69.0),
    Sketcher.Constraint("DistanceY", -1, 1, 18, 1, 77.0),
    Sketcher.Constraint("DistanceX", 7, 2, 9, 2, 52.685),
    Sketcher.Constraint("DistanceY", -1, 1, 3, 2, 19.4204),
    Sketcher.Constraint("DistanceX", -1, 1, 14, 2, 26.030201),
    Sketcher.Constraint("DistanceX", 6, 2, 8, 2, 52.525402),
    Sketcher.Constraint("DistanceY", 25, 3, 10, 2, 23.174801),
    Sketcher.Constraint("Distance", 8, 10.087839),
    Sketcher.Constraint("Distance", 13, 9.997641),
    Sketcher.Constraint("DistanceX", 0, 2, -1, 1, 32.694861),
    Sketcher.Constraint("DistanceY", -1, 1, 0, 2, 27.157349),
    Sketcher.Constraint("DistanceX", 1, 2, -1, 1, 24.823321),
    Sketcher.Constraint("DistanceY", 5, 2, -1, 1, 19.521541),
    Sketcher.Constraint("DistanceX", -1, 1, 10, 2, 19.869659),
    Sketcher.Constraint("DistanceY", 11, 2, -1, 1, 18.082352),
    Sketcher.Constraint("DistanceY", -1, 1, 14, 2, 18.12796),
    Sketcher.Constraint("DistanceX", -1, 1, 15, 2, 19.91671),
    Sketcher.Constraint("DistanceY", 23, 3, 4, 2, 21.963178),
])
sketch8.setExpression("Constraints[62]", "Params.sketch8_width")
sketch8.setExpression("Constraints[63]", "Params.sketch8_length")
pad3 = body.newObject("PartDesign::Pad", "Pad002")
pad3.Profile = sketch8
pad3.setExpression("Length", "Params.pad3_length")

# Sketch on XY plane
sketch9 = body.newObject("Sketcher::SketchObject", "Sketch008")
sketch9.AttachmentSupport = (doc.getObject("XY_Plane"), [""])
sketch9.MapMode = "FlatFace"
add_polygon(sketch9, [(27.827763, 32.155389), (27.829205, 32.153522), (19.91671, 26.038589), (19.915267, 26.040455)])  # lines 0-3
add_polygon(sketch9, [(-26.104973, -33.593928), (-26.126682, -33.612216), (-32.568924, -25.964697), (-32.547214, -25.946409)])  # lines 4-7
sketch9.addConstraint([
    Sketcher.Constraint("Perpendicular", 0, 1),
    Sketcher.Constraint("Perpendicular", 1, 2),
    Sketcher.Constraint("Parallel", 1, 3),
    Sketcher.Constraint("Perpendicular", 4, 5),
    Sketcher.Constraint("Perpendicular", 5, 6),
    Sketcher.Constraint("Perpendicular", 6, 7),
    Sketcher.Constraint("Distance", 1, 10.0),
    Sketcher.Constraint("DistanceY", 1, 2, 3, 2, 6.1168),
    Sketcher.Constraint("Distance", 0, 0.002359),
    Sketcher.Constraint("Distance", 5, 9.999351),
    Sketcher.Constraint("DistanceX", -1, 1, 1, 2, 19.91671),
    Sketcher.Constraint("DistanceY", -1, 1, 1, 2, 26.038589),
    Sketcher.Constraint("DistanceY", 6, 2, -1, 1, 25.946409),
    Sketcher.Constraint("DistanceX", 4, 2, 2, 2, 46.04195),
    Sketcher.Constraint("DistanceY", 4, 2, 2, 2, 59.652671),
    Sketcher.Constraint("DistanceX", 5, 2, 4, 2, 6.442242),
])
sketch9.setExpression("Constraints[14]", "Params.sketch9_length")
pad4 = body.newObject("PartDesign::Pad", "Pad003")
pad4.Profile = sketch9
pad4.setExpression("Length", "Params.pad4_length")

# Sketch on XY plane
sketch10 = body.newObject("Sketcher::SketchObject", "Sketch009")
sketch10.AttachmentSupport = (doc.getObject("XY_Plane"), [""])
sketch10.MapMode = "FlatFace"
sketch10.addGeometry(Part.Circle(V(0, 0, 0), V(0, 0, 1), 35), False)
sketch10.addConstraint([
    Sketcher.Constraint("Coincident", 0, 3, -1, 1),
    Sketcher.Constraint("Diameter", 0, 69.557556),
])
pocket6 = body.newObject("PartDesign::Pocket", "Pocket005")
pocket6.Profile = sketch10
pocket6.setExpression("Length", "Params.pocket6_length")
pocket6.Reversed = True

# Sketch on XY plane
sketch11 = body.newObject("Sketcher::SketchObject", "Sketch010")
sketch11.AttachmentSupport = (doc.getObject("XY_Plane"), [""])
sketch11.MapMode = "FlatFace"
sketch11.AttachmentOffset = App.Placement(V(0, 0, 2), App.Rotation())
sketch11.addGeometry([
    Part.Circle(V(0, -65, 0), V(0, 0, 1), 2),  # 0
    Part.Circle(V(62, 0, 0), V(0, 0, 1), 2),  # 1
    Part.Circle(V(-62, 0, 0), V(0, 0, 1), 2),  # 2
    Part.Circle(V(0, 65, 0), V(0, 0, 1), 2),  # 3
    Part.Circle(V(-37, 37, 0), V(0, 0, 1), 2),  # 4
    Part.Circle(V(-54, 54, 0), V(0, 0, 1), 2),  # 5
    Part.Circle(V(54, 54, 0), V(0, 0, 1), 2),  # 6
    Part.Circle(V(37, 37, 0), V(0, 0, 1), 2),  # 7
    Part.Circle(V(-54, -54, 0), V(0, 0, 1), 2),  # 8
    Part.Circle(V(-37, -37, 0), V(0, 0, 1), 2),  # 9
    Part.Circle(V(37, -37, 0), V(0, 0, 1), 2),  # 10
    Part.Circle(V(54, -54, 0), V(0, 0, 1), 2),  # 11
], False)
sketch11.addConstraint([
    Sketcher.Constraint("Equal", 0, 1),
    Sketcher.Constraint("Equal", 1, 2),
    Sketcher.Constraint("Equal", 2, 3),
    Sketcher.Constraint("Equal", 3, 4),
    Sketcher.Constraint("Equal", 4, 5),
    Sketcher.Constraint("Equal", 5, 6),
    Sketcher.Constraint("Equal", 6, 7),
    Sketcher.Constraint("Equal", 7, 8),
    Sketcher.Constraint("Equal", 8, 9),
    Sketcher.Constraint("Equal", 9, 10),
    Sketcher.Constraint("Equal", 10, 11),
    Sketcher.Constraint("Symmetric", 1, 3, 2, 3, -1, 1),
    Sketcher.Constraint("Symmetric", 0, 3, 3, 3, -1, 1),
    Sketcher.Constraint("Symmetric", 6, 3, 8, 3, -1, 1),
    Sketcher.Constraint("Symmetric", 7, 3, 9, 3, -1, 1),
    Sketcher.Constraint("Symmetric", 4, 3, 10, 3, -1, 1),
    Sketcher.Constraint("Symmetric", 5, 3, 11, 3, -1, 1),
    Sketcher.Constraint("Symmetric", 5, 3, 6, 3, -2),
    Sketcher.Constraint("Symmetric", 4, 3, 7, 3, -2),
    Sketcher.Constraint("PointOnObject", 0, 3, -2),
    Sketcher.Constraint("PointOnObject", 1, 3, -1),
    Sketcher.Constraint("Diameter", 0, 4.0),
    Sketcher.Constraint("DistanceY", 0, 3, -1, 1, 65.0),
    Sketcher.Constraint("DistanceX", -1, 1, 1, 3, 62.0),
    Sketcher.Constraint("DistanceX", 5, 3, -1, 1, 54.0),
    Sketcher.Constraint("DistanceY", -1, 1, 5, 3, 54.0),
    Sketcher.Constraint("DistanceX", 4, 3, -1, 1, 37.029437),
    Sketcher.Constraint("DistanceY", -1, 1, 4, 3, 37.029437),
])
sketch11.setExpression("Constraints[21]", "Params.sketch11_diameter")
pocket7 = body.newObject("PartDesign::Pocket", "Pocket006")
pocket7.Profile = sketch11
pocket7.setExpression("Length", "Params.pocket7_length")

doc.recompute()
